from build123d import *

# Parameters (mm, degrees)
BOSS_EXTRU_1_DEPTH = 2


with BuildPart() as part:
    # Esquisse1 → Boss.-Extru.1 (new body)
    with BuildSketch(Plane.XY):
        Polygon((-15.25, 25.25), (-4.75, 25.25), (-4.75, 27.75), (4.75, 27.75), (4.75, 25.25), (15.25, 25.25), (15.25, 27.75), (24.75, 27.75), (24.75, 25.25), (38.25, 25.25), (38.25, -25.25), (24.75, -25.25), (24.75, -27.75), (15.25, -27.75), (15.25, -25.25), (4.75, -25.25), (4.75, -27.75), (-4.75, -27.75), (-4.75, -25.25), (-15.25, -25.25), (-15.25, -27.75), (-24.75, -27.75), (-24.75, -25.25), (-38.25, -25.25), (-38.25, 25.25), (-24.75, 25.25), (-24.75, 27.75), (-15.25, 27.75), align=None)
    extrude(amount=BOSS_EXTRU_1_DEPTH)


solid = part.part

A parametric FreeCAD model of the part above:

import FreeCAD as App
import Part
import Sketcher
Q = App.Units.Quantity


def add_polygon(sketch, points):
    """Adds a closed chain of lines whose ends are joined by coincident constraints."""
    first, n = sketch.GeometryCount, len(points)
    for a, b in zip(points, points[1:] + points[:1]):
        sketch.addGeometry(Part.LineSegment(App.Vector(*a, 0), App.Vector(*b, 0)), False)
    for i in range(n):
        sketch.addConstraint(Sketcher.Constraint("Coincident", first + i, 2, first + (i + 1) % n, 1))

doc = App.newDocument("Part")
params = doc.addObject("Spreadsheet::Sheet", "Params")
for row, (alias, value) in enumerate([
    ("sketch1_width", "10.5 mm"),
    ("sketch1_width2", "9.5 mm"),
    ("sketch1_width3", "13.5 mm"),
    ("sketch1_height", "2.5 mm"),
    ("sketch1_height2", "50.5 mm"),
    ("pad1_length", "2 mm"),
], start=1):
    params.set(f"A{row}", alias)
    params.set(f"B{row}", "=" + value)
    params.setAlias(f"B{row}", alias)

body = doc.addObject("PartDesign::Body", "Body")

# Sketch on XY plane
sketch1 = body.newObject("Sketcher::SketchObject", "Sketch")
sketch1.AttachmentSupport = (doc.getObject("XY_Plane"), [""])
sketch1.MapMode = "FlatFace"
add_polygon(sketch1, [(-4.8, 25.2), (-15.2, 25.2), (-15.2, 27.8), (-24.8, 27.8), (-24.8, 25.2), (-38.2, 25.2), (-38.2, -25.2), (-24.8, -25.2), (-24.8, -27.8), (-15.2, -27.8), (-15.2, -25.2), (-4.8, -25.2), (-4.8, -27.8), (4.8, -27.8), (4.8, -25.2), (15.2, -25.2), (15.2, -27.8), (24.8, -27.8), (24.8, -25.2), (38.2, -25.2), (38.2, 25.2), (24.8, 25.2), (24.8, 27.8), (15.2, 27.8), (15.2, 25.2), (4.8, 25.2), (4.8, 27.8), (-4.8, 27.8)])  # lines 0-27
sketch1.addConstraint([
    Sketcher.Constraint("Horizontal", 0),
    Sketcher.Constraint("Vertical", 1),
    Sketcher.Constraint("Horizontal", 2),
    Sketcher.Constraint("Vertical", 3),
    Sketcher.Constraint("Horizontal", 4),
    Sketcher.Constraint("Vertical", 5),
    Sketcher.Constraint("Horizontal", 6),
    Sketcher.Constraint("Vertical", 7),
    Sketcher.Constraint("Horizontal", 8),
    Sketcher.Constraint("Vertical", 9),
    Sketcher.Constraint("Horizontal", 10),
    Sketcher.Constraint("Vertical", 11),
    Sketcher.Constraint("Horizontal", 12),
    Sketcher.Constraint("Vertical", 13),
    Sketcher.Constraint("Horizontal", 14),
    Sketcher.Constraint("Vertical", 15),
    Sketcher.Constraint("Horizontal", 16),
    Sketcher.Constraint("Vertical", 17),
    Sketcher.Constraint("Horizontal", 18),
    Sketcher.Constraint("Vertical", 19),
    Sketcher.Constraint("Horizontal", 20),
    Sketcher.Constraint("Vertical", 21),
    Sketcher.Constraint("Horizontal", 22),
    Sketcher.Constraint("Vertical", 23),
    Sketcher.Constraint("Horizontal", 24),
    Sketcher.Constraint("Vertical", 25),
    Sketcher.Constraint("Horizontal", 26),
    Sketcher.Constraint("Vertical", 27),
    Sketcher.Constraint("Symmetric", 0, 2, 14, 2, -1, 1),
    Sketcher.Constraint("Symmetric", 2, 2, 16, 2, -1, 1),
    Sketcher.Constraint("Symmetric", 4, 2, 18, 2, -1, 1),
    Sketcher.Constraint("Symmetric", 6, 2, 20, 2, -1, 1),
    Sketcher.Constraint("Symmetric", 8, 2, 22, 2, -1, 1),
    Sketcher.Constraint("Symmetric", 10, 2, 24, 2, -1, 1),
    Sketcher.Constraint("Symmetric", 12, 2, 26, 2, -1, 1),
    Sketcher.Constraint("Symmetric", 10, 2, 13, 2, -2),
    Sketcher.Constraint("Symmetric", 8, 2, 15, 2, -2),
    Sketcher.Constraint("Symmetric", 6, 2, 17, 2, -2),
    Sketcher.Constraint("Horizontal", 0, 2, 3, 2),
    Sketcher.Constraint("Horizontal", 8, 2, 11, 2),
    Sketcher.Constraint("Equal", 8, 12),
    Sketcher.Constraint("DistanceX", 0, 2, 0, 1, Q("10.5 mm")),
    Sketcher.Constraint("DistanceX", 2, 2, 2, 1, Q("9.5 mm")),
    Sketcher.Constraint("DistanceX", 4, 2, 4, 1, Q("13.5 mm")),
    Sketcher.Constraint("DistanceY", 1, 1, 1, 2, Q("2.5 mm")),
    Sketcher.Constraint("DistanceY", 5, 2, 5, 1, Q("50.5 mm")),
])
sketch1.setExpression("Constraints[69]", "Params.sketch1_width")
sketch1.setExpression("Constraints[70]", "Params.sketch1_width2")
sketch1.setExpression("Constraints[71]", "Params.sketch1_width3")
sketch1.setExpression("Constraints[72]", "Params.sketch1_height")
sketch1.setExpression("Constraints[73]", "Params.sketch1_height2")
pad1 = body.newObject("PartDesign::Pad", "Pad")
pad1.Profile = sketch1
pad1.setExpression("Length", "Params.pad1_length")

doc.recompute()
